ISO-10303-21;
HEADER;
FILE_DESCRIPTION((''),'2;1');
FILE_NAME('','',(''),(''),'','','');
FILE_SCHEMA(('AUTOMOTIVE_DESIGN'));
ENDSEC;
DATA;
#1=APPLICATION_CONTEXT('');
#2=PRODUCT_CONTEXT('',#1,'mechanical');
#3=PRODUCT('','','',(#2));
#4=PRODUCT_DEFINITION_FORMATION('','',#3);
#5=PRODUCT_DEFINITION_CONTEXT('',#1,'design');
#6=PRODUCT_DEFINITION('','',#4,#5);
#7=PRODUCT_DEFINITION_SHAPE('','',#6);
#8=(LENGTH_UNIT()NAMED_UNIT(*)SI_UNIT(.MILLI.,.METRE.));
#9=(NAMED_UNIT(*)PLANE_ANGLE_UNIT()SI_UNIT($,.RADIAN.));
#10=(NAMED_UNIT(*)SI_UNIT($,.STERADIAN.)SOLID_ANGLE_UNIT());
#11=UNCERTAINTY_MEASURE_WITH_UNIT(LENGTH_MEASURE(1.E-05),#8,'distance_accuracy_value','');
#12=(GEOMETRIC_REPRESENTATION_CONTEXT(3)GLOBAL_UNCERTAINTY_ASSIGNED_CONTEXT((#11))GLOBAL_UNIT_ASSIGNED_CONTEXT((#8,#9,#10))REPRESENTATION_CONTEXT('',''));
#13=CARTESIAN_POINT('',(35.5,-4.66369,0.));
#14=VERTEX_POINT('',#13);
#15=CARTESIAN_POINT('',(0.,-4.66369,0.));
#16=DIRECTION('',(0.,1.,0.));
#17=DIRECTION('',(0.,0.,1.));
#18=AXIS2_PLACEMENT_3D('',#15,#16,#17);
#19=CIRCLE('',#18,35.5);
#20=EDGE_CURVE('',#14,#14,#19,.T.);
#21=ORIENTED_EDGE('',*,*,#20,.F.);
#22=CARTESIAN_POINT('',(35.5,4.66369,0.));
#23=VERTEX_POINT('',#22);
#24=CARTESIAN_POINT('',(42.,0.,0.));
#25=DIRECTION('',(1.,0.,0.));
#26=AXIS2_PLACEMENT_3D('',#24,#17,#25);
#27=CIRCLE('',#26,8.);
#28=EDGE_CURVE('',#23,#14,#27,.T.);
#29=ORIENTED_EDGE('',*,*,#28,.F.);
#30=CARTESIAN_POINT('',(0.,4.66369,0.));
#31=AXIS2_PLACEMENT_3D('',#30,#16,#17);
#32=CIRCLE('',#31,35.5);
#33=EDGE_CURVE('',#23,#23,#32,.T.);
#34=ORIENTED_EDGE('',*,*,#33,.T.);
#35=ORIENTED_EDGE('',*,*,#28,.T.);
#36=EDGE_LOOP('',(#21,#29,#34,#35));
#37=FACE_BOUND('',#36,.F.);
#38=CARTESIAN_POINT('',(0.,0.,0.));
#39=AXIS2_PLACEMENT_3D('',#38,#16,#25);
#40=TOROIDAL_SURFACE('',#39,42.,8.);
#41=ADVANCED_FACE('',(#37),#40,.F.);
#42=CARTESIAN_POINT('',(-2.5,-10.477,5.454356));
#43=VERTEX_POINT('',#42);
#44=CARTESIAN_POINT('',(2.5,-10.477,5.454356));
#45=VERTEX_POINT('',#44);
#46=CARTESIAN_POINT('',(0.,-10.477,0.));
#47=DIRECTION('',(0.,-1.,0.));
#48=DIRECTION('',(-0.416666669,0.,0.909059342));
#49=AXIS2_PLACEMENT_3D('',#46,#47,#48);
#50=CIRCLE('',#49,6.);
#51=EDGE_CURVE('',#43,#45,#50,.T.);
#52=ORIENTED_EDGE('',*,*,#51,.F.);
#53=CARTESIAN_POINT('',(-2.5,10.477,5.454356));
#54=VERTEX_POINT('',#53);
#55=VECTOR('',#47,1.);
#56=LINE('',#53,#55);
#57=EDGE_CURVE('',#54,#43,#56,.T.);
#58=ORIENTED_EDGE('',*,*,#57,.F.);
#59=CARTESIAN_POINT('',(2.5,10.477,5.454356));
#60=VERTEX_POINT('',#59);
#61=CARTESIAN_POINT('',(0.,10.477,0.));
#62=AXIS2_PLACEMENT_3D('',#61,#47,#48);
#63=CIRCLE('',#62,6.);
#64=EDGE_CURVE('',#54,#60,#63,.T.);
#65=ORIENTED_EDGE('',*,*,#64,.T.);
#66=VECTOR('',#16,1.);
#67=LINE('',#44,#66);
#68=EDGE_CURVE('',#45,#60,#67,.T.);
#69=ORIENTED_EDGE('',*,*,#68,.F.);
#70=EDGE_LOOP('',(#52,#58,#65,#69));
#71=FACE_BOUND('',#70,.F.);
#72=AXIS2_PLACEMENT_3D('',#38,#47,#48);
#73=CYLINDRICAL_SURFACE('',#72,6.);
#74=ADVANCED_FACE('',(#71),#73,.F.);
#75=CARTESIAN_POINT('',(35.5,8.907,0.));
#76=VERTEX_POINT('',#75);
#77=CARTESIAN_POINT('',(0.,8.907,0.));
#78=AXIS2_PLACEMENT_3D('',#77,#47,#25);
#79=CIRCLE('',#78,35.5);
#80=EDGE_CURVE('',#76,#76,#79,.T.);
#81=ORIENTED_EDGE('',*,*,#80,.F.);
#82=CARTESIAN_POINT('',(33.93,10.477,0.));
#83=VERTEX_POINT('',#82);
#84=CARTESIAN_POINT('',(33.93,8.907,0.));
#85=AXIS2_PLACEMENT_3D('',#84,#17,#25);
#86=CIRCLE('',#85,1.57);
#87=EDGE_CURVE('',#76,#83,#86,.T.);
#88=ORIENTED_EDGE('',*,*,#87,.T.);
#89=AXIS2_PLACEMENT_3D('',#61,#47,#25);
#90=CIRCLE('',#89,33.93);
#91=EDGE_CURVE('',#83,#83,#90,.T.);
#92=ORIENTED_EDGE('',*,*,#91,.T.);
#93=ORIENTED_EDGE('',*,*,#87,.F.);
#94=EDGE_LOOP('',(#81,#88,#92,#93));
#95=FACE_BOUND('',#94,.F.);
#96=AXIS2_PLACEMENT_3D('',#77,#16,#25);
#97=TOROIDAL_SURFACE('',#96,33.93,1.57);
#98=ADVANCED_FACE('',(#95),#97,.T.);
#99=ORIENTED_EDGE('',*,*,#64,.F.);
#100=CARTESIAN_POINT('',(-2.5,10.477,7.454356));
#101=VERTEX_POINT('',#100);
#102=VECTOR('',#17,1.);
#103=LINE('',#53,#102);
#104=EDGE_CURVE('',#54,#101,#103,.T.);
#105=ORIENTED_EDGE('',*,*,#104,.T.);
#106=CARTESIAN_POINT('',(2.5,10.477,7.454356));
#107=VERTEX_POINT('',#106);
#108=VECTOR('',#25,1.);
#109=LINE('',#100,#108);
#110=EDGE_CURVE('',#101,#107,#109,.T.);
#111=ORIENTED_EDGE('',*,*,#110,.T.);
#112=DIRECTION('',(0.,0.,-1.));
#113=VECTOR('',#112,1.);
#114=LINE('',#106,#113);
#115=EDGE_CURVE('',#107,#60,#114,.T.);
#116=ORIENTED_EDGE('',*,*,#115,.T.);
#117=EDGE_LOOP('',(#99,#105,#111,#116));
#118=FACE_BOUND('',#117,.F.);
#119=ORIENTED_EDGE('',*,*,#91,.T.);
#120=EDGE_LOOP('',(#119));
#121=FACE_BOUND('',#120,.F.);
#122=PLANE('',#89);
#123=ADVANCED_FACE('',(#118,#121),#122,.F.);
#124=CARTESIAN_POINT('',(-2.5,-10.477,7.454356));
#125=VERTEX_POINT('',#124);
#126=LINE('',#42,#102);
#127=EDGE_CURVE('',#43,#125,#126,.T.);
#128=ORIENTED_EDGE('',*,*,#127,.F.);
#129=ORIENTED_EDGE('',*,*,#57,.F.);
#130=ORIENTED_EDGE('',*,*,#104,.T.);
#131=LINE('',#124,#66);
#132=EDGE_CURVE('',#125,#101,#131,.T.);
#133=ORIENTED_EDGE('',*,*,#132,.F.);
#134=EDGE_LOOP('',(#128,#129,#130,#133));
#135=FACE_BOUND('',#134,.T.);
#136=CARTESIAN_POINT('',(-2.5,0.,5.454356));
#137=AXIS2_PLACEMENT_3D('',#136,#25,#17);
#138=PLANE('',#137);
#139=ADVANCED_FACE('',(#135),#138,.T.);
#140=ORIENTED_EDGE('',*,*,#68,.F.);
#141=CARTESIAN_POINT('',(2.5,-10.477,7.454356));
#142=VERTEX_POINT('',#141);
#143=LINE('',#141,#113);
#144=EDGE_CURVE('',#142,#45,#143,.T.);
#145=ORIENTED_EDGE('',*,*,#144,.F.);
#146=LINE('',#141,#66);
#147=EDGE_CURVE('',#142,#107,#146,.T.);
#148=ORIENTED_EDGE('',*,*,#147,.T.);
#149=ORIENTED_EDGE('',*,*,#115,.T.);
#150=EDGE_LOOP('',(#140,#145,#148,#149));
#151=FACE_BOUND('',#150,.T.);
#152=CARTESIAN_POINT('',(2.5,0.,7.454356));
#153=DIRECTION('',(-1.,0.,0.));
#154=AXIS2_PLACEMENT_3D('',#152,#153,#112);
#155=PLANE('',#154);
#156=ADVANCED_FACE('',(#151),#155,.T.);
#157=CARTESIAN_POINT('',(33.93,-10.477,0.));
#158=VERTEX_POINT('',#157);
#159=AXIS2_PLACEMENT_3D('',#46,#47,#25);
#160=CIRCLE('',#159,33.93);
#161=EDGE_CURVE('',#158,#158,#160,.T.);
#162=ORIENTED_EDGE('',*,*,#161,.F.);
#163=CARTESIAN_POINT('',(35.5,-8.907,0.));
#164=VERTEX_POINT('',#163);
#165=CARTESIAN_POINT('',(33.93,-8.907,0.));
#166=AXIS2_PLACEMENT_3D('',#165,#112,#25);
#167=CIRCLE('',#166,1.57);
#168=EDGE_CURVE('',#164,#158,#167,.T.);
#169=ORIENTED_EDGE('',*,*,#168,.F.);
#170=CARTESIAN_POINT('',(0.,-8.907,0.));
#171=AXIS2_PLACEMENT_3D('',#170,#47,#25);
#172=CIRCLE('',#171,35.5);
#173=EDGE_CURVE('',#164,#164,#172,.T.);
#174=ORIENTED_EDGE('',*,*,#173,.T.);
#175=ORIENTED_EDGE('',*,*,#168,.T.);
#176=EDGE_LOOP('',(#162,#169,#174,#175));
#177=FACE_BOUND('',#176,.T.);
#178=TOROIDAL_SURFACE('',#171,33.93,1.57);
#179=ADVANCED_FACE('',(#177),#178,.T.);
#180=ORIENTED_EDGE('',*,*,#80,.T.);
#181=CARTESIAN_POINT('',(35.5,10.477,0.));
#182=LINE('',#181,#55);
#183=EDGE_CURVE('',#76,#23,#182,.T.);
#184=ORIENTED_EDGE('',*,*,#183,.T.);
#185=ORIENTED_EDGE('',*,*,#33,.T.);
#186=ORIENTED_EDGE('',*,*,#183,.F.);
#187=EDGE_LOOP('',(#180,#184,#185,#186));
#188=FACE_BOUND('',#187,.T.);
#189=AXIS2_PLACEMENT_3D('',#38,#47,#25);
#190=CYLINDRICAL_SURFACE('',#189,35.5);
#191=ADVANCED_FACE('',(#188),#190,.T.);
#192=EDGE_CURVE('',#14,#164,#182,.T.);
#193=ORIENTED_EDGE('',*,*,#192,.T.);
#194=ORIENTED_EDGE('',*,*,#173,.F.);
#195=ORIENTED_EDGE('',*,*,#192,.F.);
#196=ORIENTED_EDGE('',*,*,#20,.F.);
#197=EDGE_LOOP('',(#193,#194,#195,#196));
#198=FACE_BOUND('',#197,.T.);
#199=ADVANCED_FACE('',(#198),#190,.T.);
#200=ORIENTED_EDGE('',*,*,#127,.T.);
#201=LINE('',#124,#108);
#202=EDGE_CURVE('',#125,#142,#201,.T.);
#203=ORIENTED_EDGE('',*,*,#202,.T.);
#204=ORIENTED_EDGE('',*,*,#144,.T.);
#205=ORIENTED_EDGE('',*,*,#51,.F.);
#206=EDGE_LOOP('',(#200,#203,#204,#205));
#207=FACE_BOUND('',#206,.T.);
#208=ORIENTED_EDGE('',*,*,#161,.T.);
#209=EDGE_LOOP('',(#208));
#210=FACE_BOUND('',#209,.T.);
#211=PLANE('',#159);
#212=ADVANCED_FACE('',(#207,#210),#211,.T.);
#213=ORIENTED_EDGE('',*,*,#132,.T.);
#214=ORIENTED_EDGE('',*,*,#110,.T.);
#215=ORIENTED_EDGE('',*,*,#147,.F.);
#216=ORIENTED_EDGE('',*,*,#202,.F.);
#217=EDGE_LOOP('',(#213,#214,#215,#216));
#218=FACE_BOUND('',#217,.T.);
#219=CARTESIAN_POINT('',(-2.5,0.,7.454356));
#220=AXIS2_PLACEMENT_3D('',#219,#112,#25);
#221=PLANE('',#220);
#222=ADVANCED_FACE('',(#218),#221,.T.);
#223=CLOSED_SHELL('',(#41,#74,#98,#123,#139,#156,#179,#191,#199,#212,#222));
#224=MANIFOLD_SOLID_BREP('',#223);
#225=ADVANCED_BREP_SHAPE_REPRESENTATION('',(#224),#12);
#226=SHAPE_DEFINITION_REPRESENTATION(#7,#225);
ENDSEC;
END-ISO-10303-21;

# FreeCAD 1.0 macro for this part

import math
import FreeCAD as App
import Part
import Sketcher

V = App.Vector


def edges_at(feature, points):
    """Names of the edges that pass closest to the given points."""
    edges = feature.Shape.Edges
    near = lambda p: min(range(len(edges)), key=lambda i: edges[i].distToShape(Part.Vertex(*p))[0])
    return sorted({f"Edge{near(p) + 1}" for p in points})

doc = App.newDocument("Part")
body = doc.addObject("PartDesign::Body", "Body")

sketch1 = body.newObject("Sketcher::SketchObject", "Sketch")
sketch1.AttachmentSupport = (doc.getObject("XZ_Plane"), [""])
sketch1.MapMode = "FlatFace"
sketch1.addGeometry([
    Part.Circle(V(0, 0, 0), V(0, 0, 1), 35.5),
    Part.ArcOfCircle(Part.Circle(V(0, 0, 0), V(0, 0, 1), 6), math.radians(114.624318), math.radians(425.375682)),
    Part.LineSegment(V(-2.5, 5.454356, 0), V(-2.5, 7.454356, 0)),
    Part.LineSegment(V(-2.5, 7.454356, 0), V(2.5, 7.454356, 0)),
    Part.LineSegment(V(2.5, 7.454356, 0), V(2.5, 5.454356, 0)),
], False)
sketch1.addConstraint([
    Sketcher.Constraint("Coincident", 1, 1, 2, 1),
    Sketcher.Constraint("Coincident", 2, 2, 3, 1),
    Sketcher.Constraint("Coincident", 3, 2, 4, 1),
    Sketcher.Constraint("Coincident", 4, 2, 1, 2),
    Sketcher.Constraint("Vertical", 2),
    Sketcher.Constraint("Horizontal", 3),
    Sketcher.Constraint("Vertical", 4),
    Sketcher.Constraint("Coincident", 0, 3, -1, 1),
    Sketcher.Constraint("Coincident", 1, 3, -1, 1),
    Sketcher.Constraint("Horizontal", 1, 1, 4, 2),
    Sketcher.Constraint("Diameter", 0, 71.0),
    Sketcher.Constraint("Radius", 1, 6.0),
    Sketcher.Constraint("DistanceX", 3, 1, 3, 2, 5.0),
    Sketcher.Constraint("DistanceY", 2, 1, 2, 2, 2.0),
])
pad1 = body.newObject("PartDesign::Pad", "Pad")
pad1.Profile = sketch1
pad1.Length = 20.954
pad1.Midplane = True
doc.recompute()

fillet = body.newObject("PartDesign::Fillet", "Fillet")
fillet.Base = (pad1, edges_at(pad1, [(-35.5, 10.477, 0)]))
fillet.Radius = 1.57
doc.recompute()

fillet2 = body.newObject("PartDesign::Fillet", "Fillet001")
fillet2.Base = (fillet, edges_at(fillet, [(-35.5, -10.477, 0)]))
fillet2.Radius = 1.57

sketch2 = body.newObject("Sketcher::SketchObject", "Sketch001")
sketch2.AttachmentSupport = (doc.getObject("XY_Plane"), [""])
sketch2.MapMode = "FlatFace"
sketch2.addGeometry(Part.Circle(V(42, 0, 0), V(0, 0, 1), 8), False)
sketch2.addConstraint([
    Sketcher.Constraint("PointOnObject", 0, 3, -1),
    Sketcher.Constraint("Diameter", 0, 16.0),
    Sketcher.Constraint("DistanceX", -1, 1, 0, 3, 42.0),
])
groove = body.newObject("PartDesign::Groove", "Groove")
groove.Profile = sketch2
groove.ReferenceAxis = (sketch2, ["V_Axis"])
groove.Angle = 360

doc.recompute()
